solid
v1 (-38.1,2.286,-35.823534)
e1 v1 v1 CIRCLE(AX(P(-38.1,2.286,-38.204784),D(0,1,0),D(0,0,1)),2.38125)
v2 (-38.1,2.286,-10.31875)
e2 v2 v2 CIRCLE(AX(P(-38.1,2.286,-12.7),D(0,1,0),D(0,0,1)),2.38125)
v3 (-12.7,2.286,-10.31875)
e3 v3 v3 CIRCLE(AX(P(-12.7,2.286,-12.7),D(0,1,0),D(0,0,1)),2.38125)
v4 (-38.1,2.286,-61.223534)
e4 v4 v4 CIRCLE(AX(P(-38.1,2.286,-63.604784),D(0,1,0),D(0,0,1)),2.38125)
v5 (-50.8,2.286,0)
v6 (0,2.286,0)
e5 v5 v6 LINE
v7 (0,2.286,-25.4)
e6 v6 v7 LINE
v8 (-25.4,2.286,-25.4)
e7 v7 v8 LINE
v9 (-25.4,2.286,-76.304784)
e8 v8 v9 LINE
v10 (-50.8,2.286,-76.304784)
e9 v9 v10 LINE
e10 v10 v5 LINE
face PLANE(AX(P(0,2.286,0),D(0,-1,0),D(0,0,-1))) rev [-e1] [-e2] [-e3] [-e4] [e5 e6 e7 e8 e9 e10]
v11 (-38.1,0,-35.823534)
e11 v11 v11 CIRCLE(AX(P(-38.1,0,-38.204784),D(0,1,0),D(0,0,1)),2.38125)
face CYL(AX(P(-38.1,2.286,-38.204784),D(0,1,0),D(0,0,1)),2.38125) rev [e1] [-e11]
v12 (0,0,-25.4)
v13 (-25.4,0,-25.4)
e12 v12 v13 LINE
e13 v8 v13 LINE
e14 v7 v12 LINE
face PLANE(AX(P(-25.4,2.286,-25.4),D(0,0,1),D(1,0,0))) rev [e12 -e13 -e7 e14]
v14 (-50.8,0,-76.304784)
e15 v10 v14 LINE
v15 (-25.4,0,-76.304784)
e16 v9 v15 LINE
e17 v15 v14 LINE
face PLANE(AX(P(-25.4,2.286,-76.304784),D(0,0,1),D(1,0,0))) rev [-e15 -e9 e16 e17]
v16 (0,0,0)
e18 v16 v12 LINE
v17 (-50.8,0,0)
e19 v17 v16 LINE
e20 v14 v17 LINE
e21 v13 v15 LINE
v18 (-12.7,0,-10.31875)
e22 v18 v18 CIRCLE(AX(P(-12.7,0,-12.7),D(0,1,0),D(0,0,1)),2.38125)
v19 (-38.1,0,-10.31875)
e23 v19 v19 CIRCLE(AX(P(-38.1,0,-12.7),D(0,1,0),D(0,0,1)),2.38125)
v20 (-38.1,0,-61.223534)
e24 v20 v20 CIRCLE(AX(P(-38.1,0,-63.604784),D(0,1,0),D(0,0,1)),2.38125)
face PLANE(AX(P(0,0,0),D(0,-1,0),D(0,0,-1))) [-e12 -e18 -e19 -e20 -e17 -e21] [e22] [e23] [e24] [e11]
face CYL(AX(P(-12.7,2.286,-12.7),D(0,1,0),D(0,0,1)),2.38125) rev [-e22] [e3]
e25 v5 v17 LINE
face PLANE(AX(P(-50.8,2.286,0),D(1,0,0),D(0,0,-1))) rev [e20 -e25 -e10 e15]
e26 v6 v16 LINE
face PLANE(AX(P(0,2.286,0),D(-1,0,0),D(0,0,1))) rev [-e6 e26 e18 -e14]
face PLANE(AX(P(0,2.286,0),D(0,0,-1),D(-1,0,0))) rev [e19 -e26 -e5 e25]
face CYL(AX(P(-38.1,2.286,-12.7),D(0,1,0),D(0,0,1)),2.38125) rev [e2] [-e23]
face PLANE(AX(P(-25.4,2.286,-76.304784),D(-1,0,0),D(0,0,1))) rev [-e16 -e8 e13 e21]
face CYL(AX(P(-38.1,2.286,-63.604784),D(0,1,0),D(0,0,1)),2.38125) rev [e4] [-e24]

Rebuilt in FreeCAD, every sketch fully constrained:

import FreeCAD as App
import Part
import Sketcher
from FreeCAD import Vector
Q = App.Units.Quantity

doc = App.newDocument("Part")
body = doc.addObject("PartDesign::Body", "Body")

# Sketch on XZ plane
sketch1 = doc.addObject("Sketcher::SketchObject", "Sketch")
body.addObject(sketch1)
sketch1.AttachmentSupport = (doc.XZ_Plane, [""])
sketch1.MapMode = "FlatFace"
sketch1.addGeometry([
    Part.LineSegment(Vector(-25, -25, 0), Vector(-25, -76, 0)),  # 0
    Part.LineSegment(Vector(-25, -76, 0), Vector(-51, -76, 0)),  # 1
    Part.LineSegment(Vector(-51, -76, 0), Vector(-51, 0, 0)),  # 2
    Part.LineSegment(Vector(-51, 0, 0), Vector(0, 0, 0)),  # 3
    Part.LineSegment(Vector(0, 0, 0), Vector(0, -25, 0)),  # 4
    Part.LineSegment(Vector(0, -25, 0), Vector(-25, -25, 0)),  # 5
], False)
sketch1.addConstraint([
    Sketcher.Constraint("Coincident", 0, 2, 1, 1),
    Sketcher.Constraint("Coincident", 1, 2, 2, 1),
    Sketcher.Constraint("Coincident", 2, 2, 3, 1),
    Sketcher.Constraint("Coincident", 3, 2, 4, 1),
    Sketcher.Constraint("Coincident", 4, 2, 5, 1),
    Sketcher.Constraint("Coincident", 5, 2, 0, 1),
    Sketcher.Constraint("Vertical", 0),
    Sketcher.Constraint("Horizontal", 1),
    Sketcher.Constraint("Vertical", 2),
    Sketcher.Constraint("Horizontal", 3),
    Sketcher.Constraint("Vertical", 4),
    Sketcher.Constraint("Horizontal", 5),
    Sketcher.Constraint("Coincident", 3, 2, -1, 1),
    Sketcher.Constraint("Equal", 1, 5),
    Sketcher.Constraint("Equal", 5, 4),
    Sketcher.Constraint("DistanceX", 1, 2, 1, 1, Q("1 in")),
    Sketcher.Constraint("DistanceY", 0, 2, 0, 1, Q("50.904784 mm")),
])
pad1 = doc.addObject("PartDesign::Pad", "Pad")
body.addObject(pad1)
pad1.Profile = sketch1
pad1.Length = Q("0.09 in")
pad1.Reversed = True

# Sketch on XZ plane
sketch2 = doc.addObject("Sketcher::SketchObject", "Sketch001")
body.addObject(sketch2)
sketch2.AttachmentSupport = (doc.XZ_Plane, [""])
sketch2.MapMode = "FlatFace"
sketch2.AttachmentOffset = App.Placement(Vector(0, 0, -0.09 * 25.4), App.Rotation())
sketch2.addGeometry([
    Part.Circle(Vector(-38.1, -63.6, 0), Vector(0, 0, 1), 2.4),
    Part.Circle(Vector(-38.1, -38.2, 0), Vector(0, 0, 1), 2.4),
    Part.Circle(Vector(-38.1, -12.7, 0), Vector(0, 0, 1), 2.4),
    Part.Circle(Vector(-12.7, -12.7, 0), Vector(0, 0, 1), 2.4),
], False)
sketch2.addConstraint([
    Sketcher.Constraint("Equal", 0, 1),
    Sketcher.Constraint("Equal", 1, 2),
    Sketcher.Constraint("Equal", 2, 3),
    Sketcher.Constraint("Horizontal", 2, 3, 3, 3),
    Sketcher.Constraint("Vertical", 0, 3, 1, 3),
    Sketcher.Constraint("Vertical", 1, 3, 2, 3),
    Sketcher.Constraint("Diameter", 0, Q("0.1875 in")),
    Sketcher.Constraint("DistanceY", 0, 3, 1, 3, Q("1 in")),
    Sketcher.Constraint("DistanceX", 2, 3, 3, 3, Q("1 in")),
    Sketcher.Constraint("DistanceX", 0, 3, -1, 1, Q("1.5 in")),
    Sketcher.Constraint("DistanceY", 2, 3, -1, 1, Q("0.5 in")),
    Sketcher.Constraint("DistanceY", 0, 3, -1, 1, Q("63.604784 mm")),
])
doc.recompute()
hole = doc.addObject("PartDesign::Hole", "Hole")
body.addObject(hole)
hole.Profile = sketch2
hole.ThreadType = "None"
hole.Diameter = Q("0.1875 in")
hole.DepthType = "ThroughAll"
hole.Reversed = True

doc.recompute()
